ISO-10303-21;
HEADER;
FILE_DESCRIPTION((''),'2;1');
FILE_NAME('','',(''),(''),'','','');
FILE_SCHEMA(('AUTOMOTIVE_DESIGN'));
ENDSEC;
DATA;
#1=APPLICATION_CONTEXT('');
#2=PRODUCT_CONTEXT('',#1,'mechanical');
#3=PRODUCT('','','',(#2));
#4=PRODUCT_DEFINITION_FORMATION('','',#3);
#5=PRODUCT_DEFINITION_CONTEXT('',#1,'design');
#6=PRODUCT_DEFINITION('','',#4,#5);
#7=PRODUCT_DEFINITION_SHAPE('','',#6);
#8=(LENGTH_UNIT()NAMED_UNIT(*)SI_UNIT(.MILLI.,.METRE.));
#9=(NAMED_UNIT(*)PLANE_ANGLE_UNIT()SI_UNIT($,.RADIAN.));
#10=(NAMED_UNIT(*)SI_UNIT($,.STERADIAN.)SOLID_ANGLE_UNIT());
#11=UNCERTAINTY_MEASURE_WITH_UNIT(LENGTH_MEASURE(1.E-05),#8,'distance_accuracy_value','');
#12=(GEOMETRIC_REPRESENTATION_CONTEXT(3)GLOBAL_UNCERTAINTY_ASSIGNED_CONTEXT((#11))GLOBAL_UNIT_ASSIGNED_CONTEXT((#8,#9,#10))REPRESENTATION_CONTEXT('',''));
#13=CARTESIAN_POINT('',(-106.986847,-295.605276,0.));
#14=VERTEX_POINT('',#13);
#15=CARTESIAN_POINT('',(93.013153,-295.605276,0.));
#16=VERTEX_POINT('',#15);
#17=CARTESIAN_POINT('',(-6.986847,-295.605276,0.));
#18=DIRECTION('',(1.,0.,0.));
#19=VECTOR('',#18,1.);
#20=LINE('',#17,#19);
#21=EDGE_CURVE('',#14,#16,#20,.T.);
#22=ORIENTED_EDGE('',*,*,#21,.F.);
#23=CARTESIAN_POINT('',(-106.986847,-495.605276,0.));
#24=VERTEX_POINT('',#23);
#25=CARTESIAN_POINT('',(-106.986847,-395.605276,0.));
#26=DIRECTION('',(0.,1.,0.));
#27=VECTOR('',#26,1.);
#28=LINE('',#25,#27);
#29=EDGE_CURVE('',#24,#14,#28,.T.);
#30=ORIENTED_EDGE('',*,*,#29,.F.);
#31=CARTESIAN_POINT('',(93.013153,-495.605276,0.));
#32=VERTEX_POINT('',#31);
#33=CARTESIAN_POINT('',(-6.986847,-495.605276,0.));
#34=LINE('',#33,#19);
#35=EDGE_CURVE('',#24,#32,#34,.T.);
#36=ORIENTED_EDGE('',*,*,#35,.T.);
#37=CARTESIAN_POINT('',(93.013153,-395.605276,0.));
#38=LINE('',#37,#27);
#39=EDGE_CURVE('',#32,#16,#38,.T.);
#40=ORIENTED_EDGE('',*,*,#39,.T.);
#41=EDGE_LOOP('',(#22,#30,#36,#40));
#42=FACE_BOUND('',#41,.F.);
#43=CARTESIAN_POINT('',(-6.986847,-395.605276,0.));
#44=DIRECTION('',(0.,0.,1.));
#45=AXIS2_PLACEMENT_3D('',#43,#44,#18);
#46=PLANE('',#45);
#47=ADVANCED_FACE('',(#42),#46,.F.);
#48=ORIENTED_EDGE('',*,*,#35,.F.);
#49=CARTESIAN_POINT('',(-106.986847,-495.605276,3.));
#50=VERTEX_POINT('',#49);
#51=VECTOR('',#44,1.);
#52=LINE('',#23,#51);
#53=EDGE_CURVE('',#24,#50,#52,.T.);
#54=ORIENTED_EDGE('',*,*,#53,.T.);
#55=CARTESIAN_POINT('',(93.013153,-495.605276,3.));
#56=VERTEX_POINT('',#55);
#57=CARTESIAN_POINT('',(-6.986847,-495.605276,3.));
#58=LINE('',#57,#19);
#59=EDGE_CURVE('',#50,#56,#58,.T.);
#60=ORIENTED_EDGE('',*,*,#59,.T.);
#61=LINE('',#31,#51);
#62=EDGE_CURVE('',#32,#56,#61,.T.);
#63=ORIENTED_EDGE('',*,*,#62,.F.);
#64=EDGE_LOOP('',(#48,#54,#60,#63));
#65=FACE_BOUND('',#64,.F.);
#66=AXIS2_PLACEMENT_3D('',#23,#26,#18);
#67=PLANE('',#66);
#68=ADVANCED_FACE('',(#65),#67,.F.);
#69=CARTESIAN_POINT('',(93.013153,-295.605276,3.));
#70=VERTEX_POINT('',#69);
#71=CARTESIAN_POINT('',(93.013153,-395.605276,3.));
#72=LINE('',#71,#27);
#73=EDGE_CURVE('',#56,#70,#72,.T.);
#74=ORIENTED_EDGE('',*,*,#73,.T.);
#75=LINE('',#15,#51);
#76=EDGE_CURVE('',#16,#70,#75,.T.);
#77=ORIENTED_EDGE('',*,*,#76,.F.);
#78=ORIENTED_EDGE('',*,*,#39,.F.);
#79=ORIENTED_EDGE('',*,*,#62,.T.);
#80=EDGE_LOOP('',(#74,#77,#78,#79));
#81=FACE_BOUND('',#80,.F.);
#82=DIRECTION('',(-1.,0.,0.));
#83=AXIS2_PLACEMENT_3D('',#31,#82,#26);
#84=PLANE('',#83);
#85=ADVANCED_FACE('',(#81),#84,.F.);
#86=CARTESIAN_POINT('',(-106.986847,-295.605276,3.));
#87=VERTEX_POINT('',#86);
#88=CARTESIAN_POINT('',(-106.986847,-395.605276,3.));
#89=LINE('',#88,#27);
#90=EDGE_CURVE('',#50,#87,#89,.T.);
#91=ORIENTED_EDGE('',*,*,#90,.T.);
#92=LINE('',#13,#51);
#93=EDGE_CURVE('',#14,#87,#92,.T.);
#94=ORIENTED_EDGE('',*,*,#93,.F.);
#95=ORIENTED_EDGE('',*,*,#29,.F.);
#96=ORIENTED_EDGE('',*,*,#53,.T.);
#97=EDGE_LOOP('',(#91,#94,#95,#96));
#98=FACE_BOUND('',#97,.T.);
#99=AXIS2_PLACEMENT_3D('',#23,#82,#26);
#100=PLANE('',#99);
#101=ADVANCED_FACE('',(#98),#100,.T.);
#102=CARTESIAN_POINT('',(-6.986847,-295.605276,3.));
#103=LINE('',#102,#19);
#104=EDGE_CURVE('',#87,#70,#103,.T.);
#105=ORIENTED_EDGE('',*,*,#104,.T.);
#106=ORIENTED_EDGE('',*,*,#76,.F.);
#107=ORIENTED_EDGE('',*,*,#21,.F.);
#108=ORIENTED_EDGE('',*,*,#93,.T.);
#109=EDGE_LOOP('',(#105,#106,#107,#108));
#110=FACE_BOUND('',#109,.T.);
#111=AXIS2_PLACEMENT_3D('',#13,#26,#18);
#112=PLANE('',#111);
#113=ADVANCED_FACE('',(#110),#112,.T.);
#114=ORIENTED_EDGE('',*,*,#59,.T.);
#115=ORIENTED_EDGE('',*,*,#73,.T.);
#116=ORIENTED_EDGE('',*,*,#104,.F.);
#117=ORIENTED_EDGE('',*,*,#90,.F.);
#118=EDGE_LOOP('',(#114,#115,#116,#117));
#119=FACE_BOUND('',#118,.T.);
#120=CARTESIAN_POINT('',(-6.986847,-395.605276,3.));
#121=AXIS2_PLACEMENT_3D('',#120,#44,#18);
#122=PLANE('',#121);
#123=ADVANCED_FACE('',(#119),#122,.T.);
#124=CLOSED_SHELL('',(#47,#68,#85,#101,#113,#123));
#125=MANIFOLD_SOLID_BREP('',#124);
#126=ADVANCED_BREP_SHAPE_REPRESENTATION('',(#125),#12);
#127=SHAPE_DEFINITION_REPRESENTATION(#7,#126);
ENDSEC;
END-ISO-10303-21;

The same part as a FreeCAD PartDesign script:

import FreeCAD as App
import Part
import Sketcher

V = App.Vector
Q = App.Units.Quantity


def add_polygon(sketch, points):
    """Adds a closed chain of lines whose ends are joined by coincident constraints."""
    first, n = sketch.GeometryCount, len(points)
    for a, b in zip(points, points[1:] + points[:1]):
        sketch.addGeometry(Part.LineSegment(App.Vector(*a, 0), App.Vector(*b, 0)), False)
    for i in range(n):
        sketch.addConstraint(Sketcher.Constraint("Coincident", first + i, 2, first + (i + 1) % n, 1))

doc = App.newDocument("Part")
body = doc.addObject("PartDesign::Body", "Body")

# Sketch on XY plane
sketch1 = body.newObject("Sketcher::SketchObject", "Sketch")
sketch1.AttachmentSupport = (doc.getObject("XY_Plane"), [""])
sketch1.MapMode = "FlatFace"
add_polygon(sketch1, [(-107, -296), (-107, -496), (93, -496), (93, -296)])  # lines 0-3
sketch1.addConstraint([
    Sketcher.Constraint("Vertical", 0),
    Sketcher.Constraint("Horizontal", 1),
    Sketcher.Constraint("Vertical", 2),
    Sketcher.Constraint("Horizontal", 3),
    Sketcher.Constraint("Equal", 3, 0),
    Sketcher.Constraint("DistanceX", 1, 1, 1, 2, Q("200 mm")),
    Sketcher.Constraint("DistanceX", 0, 2, -1, 1, Q("106.986847 mm")),
    Sketcher.Constraint("DistanceY", 0, 2, -1, 1, Q("495.605276 mm")),
])
pad1 = body.newObject("PartDesign::Pad", "Pad")
pad1.Profile = sketch1
pad1.Length = 3

doc.recompute()
